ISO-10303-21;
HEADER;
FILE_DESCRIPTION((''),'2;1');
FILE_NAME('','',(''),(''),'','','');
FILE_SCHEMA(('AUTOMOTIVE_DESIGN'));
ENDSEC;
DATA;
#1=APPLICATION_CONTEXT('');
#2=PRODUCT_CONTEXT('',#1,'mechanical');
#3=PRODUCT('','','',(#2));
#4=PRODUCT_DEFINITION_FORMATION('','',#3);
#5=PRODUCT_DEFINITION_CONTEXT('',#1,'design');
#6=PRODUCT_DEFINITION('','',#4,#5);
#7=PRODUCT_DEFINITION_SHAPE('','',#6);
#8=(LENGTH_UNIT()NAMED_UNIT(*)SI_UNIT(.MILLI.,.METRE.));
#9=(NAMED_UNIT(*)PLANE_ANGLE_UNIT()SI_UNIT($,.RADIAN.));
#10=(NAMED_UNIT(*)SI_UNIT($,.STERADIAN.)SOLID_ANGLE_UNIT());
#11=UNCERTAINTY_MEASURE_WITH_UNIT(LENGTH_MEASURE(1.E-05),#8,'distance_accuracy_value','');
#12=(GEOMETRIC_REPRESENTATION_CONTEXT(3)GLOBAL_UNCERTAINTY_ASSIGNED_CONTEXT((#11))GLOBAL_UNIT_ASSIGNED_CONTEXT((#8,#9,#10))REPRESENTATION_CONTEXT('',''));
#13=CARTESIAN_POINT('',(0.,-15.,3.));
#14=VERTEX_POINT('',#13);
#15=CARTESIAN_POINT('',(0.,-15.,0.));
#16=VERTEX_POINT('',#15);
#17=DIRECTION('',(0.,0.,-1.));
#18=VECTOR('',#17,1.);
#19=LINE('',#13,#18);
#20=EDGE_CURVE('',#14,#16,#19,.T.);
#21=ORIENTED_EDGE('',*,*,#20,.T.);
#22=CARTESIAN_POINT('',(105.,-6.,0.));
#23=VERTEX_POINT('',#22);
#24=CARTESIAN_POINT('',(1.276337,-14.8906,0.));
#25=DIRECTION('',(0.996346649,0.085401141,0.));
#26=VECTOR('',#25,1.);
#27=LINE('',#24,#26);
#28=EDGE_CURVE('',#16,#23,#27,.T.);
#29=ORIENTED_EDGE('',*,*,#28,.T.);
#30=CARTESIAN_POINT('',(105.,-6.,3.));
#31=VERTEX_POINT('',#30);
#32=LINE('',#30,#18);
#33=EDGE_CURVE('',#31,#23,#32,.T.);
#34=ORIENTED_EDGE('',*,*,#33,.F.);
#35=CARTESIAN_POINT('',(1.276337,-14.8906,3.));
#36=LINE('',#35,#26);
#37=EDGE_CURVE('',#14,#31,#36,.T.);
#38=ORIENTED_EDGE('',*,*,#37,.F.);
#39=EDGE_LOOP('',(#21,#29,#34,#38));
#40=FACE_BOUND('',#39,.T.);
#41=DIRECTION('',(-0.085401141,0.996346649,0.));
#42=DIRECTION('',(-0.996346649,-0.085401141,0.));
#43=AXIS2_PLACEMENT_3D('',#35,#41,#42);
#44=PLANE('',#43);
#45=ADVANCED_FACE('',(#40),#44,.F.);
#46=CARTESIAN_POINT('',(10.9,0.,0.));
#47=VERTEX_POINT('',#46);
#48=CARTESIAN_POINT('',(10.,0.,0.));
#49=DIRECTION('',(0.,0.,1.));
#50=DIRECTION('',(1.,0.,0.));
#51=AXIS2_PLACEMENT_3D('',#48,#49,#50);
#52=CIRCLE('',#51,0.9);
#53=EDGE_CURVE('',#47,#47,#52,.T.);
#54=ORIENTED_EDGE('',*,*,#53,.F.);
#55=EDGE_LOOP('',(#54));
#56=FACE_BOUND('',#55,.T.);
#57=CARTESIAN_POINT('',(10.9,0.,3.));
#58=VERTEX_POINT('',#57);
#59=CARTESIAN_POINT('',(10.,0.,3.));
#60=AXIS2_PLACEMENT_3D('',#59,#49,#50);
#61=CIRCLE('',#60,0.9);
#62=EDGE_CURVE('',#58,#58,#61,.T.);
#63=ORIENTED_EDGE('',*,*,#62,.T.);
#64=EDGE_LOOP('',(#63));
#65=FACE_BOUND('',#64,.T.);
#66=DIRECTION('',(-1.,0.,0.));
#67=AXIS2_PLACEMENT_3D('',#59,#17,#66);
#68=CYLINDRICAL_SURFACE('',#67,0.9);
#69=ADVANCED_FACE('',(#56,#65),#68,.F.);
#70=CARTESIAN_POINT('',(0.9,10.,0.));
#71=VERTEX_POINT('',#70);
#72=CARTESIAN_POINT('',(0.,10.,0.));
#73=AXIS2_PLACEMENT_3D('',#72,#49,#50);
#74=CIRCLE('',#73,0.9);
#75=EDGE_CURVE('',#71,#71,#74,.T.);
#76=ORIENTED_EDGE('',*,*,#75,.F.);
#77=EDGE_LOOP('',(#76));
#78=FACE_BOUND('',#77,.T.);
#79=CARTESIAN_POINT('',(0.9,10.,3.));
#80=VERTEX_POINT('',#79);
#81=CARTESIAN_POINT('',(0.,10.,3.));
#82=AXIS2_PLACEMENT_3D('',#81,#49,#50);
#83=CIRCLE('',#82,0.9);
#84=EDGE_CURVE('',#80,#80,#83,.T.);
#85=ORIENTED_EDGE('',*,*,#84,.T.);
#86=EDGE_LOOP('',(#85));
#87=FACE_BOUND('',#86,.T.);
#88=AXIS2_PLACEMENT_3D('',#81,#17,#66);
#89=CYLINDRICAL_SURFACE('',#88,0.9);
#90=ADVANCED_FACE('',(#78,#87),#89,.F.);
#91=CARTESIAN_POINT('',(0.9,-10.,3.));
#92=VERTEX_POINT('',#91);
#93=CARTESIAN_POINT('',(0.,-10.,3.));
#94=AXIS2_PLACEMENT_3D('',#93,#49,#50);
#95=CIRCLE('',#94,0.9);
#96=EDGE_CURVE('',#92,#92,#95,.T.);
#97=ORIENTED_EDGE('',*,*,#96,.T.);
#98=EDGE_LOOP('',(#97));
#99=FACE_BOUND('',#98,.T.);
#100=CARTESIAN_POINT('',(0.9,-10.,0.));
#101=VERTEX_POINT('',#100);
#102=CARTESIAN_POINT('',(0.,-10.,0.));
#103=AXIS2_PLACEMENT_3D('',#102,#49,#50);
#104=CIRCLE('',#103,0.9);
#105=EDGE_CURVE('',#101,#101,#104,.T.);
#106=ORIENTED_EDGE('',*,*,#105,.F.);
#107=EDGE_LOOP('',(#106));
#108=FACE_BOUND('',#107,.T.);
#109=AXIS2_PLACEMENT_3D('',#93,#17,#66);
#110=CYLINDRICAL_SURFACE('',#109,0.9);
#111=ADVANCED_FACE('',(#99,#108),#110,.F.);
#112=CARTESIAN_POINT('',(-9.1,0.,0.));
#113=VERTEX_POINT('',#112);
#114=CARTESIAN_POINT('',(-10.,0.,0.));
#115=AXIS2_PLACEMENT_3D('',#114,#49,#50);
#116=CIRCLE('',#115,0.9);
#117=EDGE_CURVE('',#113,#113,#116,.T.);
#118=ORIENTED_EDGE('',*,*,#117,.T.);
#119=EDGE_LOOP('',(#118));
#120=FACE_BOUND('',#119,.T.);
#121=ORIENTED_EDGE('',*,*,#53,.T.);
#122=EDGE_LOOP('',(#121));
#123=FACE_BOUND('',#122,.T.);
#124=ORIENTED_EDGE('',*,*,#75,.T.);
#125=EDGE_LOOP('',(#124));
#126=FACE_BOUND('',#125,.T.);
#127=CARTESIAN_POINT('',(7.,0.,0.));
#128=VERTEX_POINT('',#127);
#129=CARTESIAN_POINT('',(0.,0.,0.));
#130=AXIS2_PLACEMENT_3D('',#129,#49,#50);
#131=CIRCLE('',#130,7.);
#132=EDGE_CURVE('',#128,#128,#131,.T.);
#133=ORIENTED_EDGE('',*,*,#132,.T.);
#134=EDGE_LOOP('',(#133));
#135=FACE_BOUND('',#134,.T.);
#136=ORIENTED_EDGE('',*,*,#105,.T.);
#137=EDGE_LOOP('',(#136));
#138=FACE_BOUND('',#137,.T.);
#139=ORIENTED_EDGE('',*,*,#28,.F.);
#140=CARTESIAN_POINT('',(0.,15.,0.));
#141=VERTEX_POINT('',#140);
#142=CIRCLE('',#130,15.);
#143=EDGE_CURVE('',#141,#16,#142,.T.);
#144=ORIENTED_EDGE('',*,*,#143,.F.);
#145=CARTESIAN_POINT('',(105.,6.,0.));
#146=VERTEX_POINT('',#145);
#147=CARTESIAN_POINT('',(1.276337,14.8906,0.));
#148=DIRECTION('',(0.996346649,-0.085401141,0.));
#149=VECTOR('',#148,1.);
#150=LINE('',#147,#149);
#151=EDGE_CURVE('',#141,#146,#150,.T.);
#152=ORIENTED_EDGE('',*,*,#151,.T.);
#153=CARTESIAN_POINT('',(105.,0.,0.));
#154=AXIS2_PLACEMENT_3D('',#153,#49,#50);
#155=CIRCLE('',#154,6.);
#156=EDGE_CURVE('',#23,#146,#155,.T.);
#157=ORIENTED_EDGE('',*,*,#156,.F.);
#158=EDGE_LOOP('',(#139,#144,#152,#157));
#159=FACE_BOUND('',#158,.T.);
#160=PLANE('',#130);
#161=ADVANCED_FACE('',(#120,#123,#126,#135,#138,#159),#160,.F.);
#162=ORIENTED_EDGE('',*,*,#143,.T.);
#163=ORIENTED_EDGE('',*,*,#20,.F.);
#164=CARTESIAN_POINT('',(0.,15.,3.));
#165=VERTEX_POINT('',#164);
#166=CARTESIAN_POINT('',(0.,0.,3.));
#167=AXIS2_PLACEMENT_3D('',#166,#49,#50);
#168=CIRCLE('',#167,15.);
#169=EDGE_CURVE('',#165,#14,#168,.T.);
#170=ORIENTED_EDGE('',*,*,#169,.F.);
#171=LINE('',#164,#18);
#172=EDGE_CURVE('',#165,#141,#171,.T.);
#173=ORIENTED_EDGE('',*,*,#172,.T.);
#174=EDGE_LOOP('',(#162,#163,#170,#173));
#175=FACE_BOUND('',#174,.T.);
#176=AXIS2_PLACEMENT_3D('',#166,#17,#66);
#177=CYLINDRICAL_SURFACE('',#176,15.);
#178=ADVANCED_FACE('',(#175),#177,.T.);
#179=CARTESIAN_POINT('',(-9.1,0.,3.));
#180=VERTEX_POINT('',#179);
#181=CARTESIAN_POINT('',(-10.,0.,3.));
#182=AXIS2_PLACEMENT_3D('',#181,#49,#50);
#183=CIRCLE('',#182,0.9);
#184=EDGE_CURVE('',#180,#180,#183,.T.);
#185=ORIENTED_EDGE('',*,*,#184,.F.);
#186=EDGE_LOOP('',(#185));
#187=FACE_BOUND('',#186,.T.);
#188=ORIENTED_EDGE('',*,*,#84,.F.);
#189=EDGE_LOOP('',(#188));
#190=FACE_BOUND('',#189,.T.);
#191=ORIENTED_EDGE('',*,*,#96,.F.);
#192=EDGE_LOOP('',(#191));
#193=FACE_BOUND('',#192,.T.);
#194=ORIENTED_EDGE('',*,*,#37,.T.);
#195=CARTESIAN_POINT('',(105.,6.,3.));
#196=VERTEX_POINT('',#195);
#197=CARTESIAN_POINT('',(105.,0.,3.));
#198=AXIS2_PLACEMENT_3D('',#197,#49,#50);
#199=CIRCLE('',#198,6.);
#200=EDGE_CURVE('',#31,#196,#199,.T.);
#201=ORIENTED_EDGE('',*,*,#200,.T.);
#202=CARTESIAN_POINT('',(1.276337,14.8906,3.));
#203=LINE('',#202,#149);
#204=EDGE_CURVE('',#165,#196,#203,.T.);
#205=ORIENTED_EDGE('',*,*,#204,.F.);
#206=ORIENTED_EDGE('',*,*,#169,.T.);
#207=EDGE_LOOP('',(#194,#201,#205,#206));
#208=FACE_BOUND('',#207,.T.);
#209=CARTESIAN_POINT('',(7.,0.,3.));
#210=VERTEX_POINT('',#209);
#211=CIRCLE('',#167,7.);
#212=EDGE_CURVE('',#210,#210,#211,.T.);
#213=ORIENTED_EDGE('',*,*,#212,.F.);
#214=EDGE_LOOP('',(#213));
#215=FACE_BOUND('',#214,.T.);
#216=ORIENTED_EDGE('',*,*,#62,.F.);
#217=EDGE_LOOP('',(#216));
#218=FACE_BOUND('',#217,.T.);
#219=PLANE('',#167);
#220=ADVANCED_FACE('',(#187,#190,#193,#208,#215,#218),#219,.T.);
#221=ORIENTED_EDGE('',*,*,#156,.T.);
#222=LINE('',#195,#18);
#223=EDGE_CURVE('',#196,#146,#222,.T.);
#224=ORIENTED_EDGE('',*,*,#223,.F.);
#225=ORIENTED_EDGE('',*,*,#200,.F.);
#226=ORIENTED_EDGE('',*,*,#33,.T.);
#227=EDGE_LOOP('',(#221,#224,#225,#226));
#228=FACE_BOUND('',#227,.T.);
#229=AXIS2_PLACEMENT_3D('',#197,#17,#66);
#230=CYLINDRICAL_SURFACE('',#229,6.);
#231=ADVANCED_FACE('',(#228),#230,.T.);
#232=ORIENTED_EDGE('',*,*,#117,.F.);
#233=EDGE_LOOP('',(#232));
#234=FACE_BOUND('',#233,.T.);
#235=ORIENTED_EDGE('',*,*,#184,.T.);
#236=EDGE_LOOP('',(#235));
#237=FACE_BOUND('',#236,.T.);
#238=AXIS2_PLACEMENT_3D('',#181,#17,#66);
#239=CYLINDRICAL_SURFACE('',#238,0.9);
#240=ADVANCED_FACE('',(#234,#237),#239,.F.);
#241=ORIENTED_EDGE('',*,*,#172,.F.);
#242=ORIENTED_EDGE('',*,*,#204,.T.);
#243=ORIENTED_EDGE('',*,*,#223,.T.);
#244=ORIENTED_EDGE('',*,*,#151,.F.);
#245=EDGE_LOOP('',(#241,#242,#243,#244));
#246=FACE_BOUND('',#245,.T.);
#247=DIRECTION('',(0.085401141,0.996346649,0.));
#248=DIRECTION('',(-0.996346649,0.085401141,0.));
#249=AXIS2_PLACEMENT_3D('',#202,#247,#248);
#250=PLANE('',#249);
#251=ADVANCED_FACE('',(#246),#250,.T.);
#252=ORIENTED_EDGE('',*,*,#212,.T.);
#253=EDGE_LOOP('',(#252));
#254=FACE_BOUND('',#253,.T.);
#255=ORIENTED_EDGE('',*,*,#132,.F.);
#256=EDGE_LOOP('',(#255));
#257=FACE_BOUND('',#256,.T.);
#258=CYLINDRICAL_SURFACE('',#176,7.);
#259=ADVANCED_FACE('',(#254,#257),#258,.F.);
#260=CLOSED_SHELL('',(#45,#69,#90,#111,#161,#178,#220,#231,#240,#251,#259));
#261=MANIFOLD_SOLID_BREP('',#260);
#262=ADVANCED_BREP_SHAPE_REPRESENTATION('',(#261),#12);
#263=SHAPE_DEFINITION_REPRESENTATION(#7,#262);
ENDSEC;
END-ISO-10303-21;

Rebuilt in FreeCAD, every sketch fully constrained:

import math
import FreeCAD as App
import Part
import Sketcher

doc = App.newDocument("Part")
body = doc.addObject("PartDesign::Body", "Body")

sketch1 = body.newObject("Sketcher::SketchObject", "Sketch")
sketch1.AttachmentSupport = (doc.getObject("XY_Plane"), [""])
sketch1.MapMode = "FlatFace"
sketch1.addGeometry([
    Part.LineSegment(App.Vector(105, 6, 0), App.Vector(2.6, 14.8, 0)),
    Part.LineSegment(App.Vector(2.6, 14.8, 0), App.Vector(0, 15, 0)),
    Part.ArcOfCircle(Part.Circle(App.Vector(0, 0, 0), App.Vector(0, 0, 1), 15), math.radians(90), math.radians(270)),
    Part.LineSegment(App.Vector(0, -15, 0), App.Vector(2.6, -14.8, 0)),
    Part.LineSegment(App.Vector(2.6, -14.8, 0), App.Vector(105, -6, 0)),
    Part.ArcOfCircle(Part.Circle(App.Vector(105, 0, 0), App.Vector(0, 0, 1), 6), math.radians(-90), math.radians(90)),
    Part.Circle(App.Vector(0, 10, 0), App.Vector(0, 0, 1), 0.9),
    Part.Circle(App.Vector(0, 0, 0), App.Vector(0, 0, 1), 7),
    Part.Circle(App.Vector(0, -10, 0), App.Vector(0, 0, 1), 0.9),
    Part.Circle(App.Vector(-10, 0, 0), App.Vector(0, 0, 1), 0.9),
    Part.Circle(App.Vector(10, 0, 0), App.Vector(0, 0, 1), 0.9),
], False)
sketch1.addConstraint([
    Sketcher.Constraint("Coincident", 0, 2, 1, 1),
    Sketcher.Constraint("Coincident", 1, 2, 2, 1),
    Sketcher.Constraint("Coincident", 2, 2, 3, 1),
    Sketcher.Constraint("Coincident", 3, 2, 4, 1),
    Sketcher.Constraint("Coincident", 4, 2, 5, 1),
    Sketcher.Constraint("Coincident", 5, 2, 0, 1),
    Sketcher.Constraint("Coincident", 2, 3, -1, 1),
    Sketcher.Constraint("Coincident", 7, 3, -1, 1),
    Sketcher.Constraint("Equal", 6, 8),
    Sketcher.Constraint("Equal", 8, 9),
    Sketcher.Constraint("Equal", 9, 10),
    Sketcher.Constraint("Symmetric", 6, 3, 8, 3, -1, 1),
    Sketcher.Constraint("Symmetric", 9, 3, 10, 3, -1, 1),
    Sketcher.Constraint("Symmetric", 0, 2, 3, 2, -1),
    Sketcher.Constraint("Symmetric", 4, 2, 5, 2, -1),
    Sketcher.Constraint("PointOnObject", 6, 3, -2),
    Sketcher.Constraint("PointOnObject", 9, 3, -1),
    Sketcher.Constraint("PointOnObject", 1, 2, -2),
    Sketcher.Constraint("PointOnObject", 2, 2, -2),
    Sketcher.Constraint("Parallel", 0, 1),
    Sketcher.Constraint("Vertical", 5, 3, 4, 2),
    Sketcher.Constraint("Diameter", 7, 14.0),
    Sketcher.Constraint("Radius", 2, 15.0),
    Sketcher.Constraint("Radius", 5, 6.0),
    Sketcher.Constraint("Diameter", 6, 1.8),
    Sketcher.Constraint("DistanceX", -1, 1, 5, 3, 105.0),
    Sketcher.Constraint("DistanceY", -1, 1, 6, 3, 10.0),
    Sketcher.Constraint("DistanceX", 9, 3, -1, 1, 10.0),
    Sketcher.Constraint("DistanceY", -1, 1, 0, 2, 14.781199),
])
pad1 = body.newObject("PartDesign::Pad", "Pad")
pad1.Profile = sketch1
pad1.Length = 3

doc.recompute()
